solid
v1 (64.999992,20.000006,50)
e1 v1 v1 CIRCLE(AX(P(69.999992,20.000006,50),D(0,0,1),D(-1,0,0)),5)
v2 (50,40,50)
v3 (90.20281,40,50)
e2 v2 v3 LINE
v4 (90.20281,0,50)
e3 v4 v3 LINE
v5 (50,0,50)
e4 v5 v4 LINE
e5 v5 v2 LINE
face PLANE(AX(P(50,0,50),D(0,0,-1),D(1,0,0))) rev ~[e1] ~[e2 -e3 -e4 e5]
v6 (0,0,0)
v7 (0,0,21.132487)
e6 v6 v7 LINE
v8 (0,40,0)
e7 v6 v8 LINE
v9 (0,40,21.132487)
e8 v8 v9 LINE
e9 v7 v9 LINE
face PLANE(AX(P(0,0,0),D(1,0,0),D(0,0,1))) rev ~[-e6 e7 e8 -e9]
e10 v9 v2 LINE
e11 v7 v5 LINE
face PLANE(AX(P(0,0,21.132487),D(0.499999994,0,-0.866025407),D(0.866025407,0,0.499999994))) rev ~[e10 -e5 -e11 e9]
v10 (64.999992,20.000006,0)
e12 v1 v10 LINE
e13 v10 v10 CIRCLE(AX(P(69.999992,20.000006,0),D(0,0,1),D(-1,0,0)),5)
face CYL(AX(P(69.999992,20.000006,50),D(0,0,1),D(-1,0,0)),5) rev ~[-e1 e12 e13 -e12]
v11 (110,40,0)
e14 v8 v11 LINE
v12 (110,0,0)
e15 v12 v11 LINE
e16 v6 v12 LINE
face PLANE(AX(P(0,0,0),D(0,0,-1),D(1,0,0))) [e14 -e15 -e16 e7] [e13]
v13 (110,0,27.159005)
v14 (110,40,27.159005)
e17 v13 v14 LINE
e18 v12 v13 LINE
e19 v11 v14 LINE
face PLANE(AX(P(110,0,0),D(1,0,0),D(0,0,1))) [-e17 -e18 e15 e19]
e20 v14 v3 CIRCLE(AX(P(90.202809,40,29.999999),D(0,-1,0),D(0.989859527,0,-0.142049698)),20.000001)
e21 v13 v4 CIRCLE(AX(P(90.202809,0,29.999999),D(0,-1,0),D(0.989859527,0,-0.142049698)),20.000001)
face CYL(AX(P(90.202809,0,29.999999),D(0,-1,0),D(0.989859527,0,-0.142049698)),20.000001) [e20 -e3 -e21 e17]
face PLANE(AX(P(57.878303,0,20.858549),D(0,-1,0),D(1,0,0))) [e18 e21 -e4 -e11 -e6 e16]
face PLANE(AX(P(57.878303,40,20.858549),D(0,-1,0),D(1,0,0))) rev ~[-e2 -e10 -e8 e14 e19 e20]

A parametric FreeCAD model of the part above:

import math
import FreeCAD as App
import Part
import Sketcher

V = App.Vector
Q = App.Units.Quantity

doc = App.newDocument("Part")
body = doc.addObject("PartDesign::Body", "Body")

sketch1 = doc.addObject("Sketcher::SketchObject", "Sketch")
body.addObject(sketch1)
sketch1.AttachmentSupport = (doc.XZ_Plane, [""])
sketch1.MapMode = "FlatFace"
sketch1.addGeometry([
    Part.LineSegment(V(0, 0, 0), V(110, 0, 0)),
    Part.LineSegment(V(110, 0, 0), V(110, 27, 0)),
    Part.ArcOfCircle(Part.Circle(V(90, 30, 0), V(0, 0, 1), 20), math.radians(-8), math.radians(90)),
    Part.LineSegment(V(90, 50, 0), V(50, 50, 0)),
    Part.LineSegment(V(50, 50, 0), V(0, 21, 0)),
    Part.LineSegment(V(0, 21, 0), V(0, 0, 0)),
], False)
sketch1.addConstraint([
    Sketcher.Constraint("Coincident", 0, 2, 1, 1),
    Sketcher.Constraint("Coincident", 1, 2, 2, 1),
    Sketcher.Constraint("Tangent", 2, 2, 3, 1),
    Sketcher.Constraint("Coincident", 3, 2, 4, 1),
    Sketcher.Constraint("Coincident", 4, 2, 5, 1),
    Sketcher.Constraint("Coincident", 5, 2, 0, 1),
    Sketcher.Constraint("Horizontal", 0),
    Sketcher.Constraint("Vertical", 1),
    Sketcher.Constraint("Horizontal", 3),
    Sketcher.Constraint("Vertical", 5),
    Sketcher.Constraint("Coincident", 5, 2, -1, 1),
    Sketcher.Constraint("Radius", 2, 20.000001),
    Sketcher.Constraint("DistanceX", 0, 1, 0, 2, 110.0),
    Sketcher.Constraint("Angle", 4, Q("-150 deg")),
    Sketcher.Constraint("DistanceY", -1, 1, 2, 3, 29.999999),
    Sketcher.Constraint("DistanceX", -1, 1, 3, 2, 50.0),
    Sketcher.Constraint("DistanceX", 3, 2, 3, 1, 40.20281),
])
pad1 = doc.addObject("PartDesign::Pad", "Pad")
body.addObject(pad1)
pad1.Profile = sketch1
pad1.Length = 40
pad1.Reversed = True

sketch2 = doc.addObject("Sketcher::SketchObject", "Sketch001")
body.addObject(sketch2)
sketch2.AttachmentSupport = (doc.XY_Plane, [""])
sketch2.MapMode = "FlatFace"
sketch2.AttachmentOffset = App.Placement(V(0, 0, 50), App.Rotation())
sketch2.addGeometry(Part.Circle(V(70, 20, 0), V(0, 0, 1), 5), False)
sketch2.addConstraint([
    Sketcher.Constraint("Diameter", 0, 10.0),
    Sketcher.Constraint("DistanceX", -1, 1, 0, 3, 69.999992),
    Sketcher.Constraint("DistanceY", -1, 1, 0, 3, 20.000006),
])
pocket1 = doc.addObject("PartDesign::Pocket", "Pocket")
body.addObject(pocket1)
pocket1.Profile = sketch2
pocket1.Type = "ThroughAll"

doc.recompute()
